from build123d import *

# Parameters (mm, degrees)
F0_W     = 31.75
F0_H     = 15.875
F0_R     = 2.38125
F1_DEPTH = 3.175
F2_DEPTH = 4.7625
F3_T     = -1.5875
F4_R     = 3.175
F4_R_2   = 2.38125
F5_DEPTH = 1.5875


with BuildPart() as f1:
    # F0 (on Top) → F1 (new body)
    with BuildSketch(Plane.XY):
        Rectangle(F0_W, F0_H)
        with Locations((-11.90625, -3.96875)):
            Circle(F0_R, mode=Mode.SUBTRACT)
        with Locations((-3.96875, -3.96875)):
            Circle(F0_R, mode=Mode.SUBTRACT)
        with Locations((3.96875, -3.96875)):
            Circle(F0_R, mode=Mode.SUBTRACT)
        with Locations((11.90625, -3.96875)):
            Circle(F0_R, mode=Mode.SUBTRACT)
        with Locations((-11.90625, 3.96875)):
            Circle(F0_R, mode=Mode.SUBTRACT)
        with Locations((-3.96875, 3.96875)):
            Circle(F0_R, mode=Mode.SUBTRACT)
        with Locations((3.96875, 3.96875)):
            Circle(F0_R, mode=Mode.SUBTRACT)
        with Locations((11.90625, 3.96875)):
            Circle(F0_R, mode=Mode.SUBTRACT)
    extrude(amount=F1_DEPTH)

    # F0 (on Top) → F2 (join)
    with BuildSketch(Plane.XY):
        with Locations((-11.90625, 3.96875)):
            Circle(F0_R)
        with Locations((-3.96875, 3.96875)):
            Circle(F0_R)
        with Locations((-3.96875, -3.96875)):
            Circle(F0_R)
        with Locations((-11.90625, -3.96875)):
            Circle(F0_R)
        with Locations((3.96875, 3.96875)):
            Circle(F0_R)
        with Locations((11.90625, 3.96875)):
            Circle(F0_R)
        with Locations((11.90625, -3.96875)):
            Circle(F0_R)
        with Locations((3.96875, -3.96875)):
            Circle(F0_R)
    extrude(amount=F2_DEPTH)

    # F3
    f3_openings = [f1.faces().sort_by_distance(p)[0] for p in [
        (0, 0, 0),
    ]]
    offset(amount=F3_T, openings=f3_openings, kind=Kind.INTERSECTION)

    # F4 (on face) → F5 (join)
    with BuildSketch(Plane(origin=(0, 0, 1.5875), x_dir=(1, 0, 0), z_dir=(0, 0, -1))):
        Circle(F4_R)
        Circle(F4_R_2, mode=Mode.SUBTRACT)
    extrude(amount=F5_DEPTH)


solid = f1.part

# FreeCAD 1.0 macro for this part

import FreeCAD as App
import Part
import Sketcher
from FreeCAD import Vector
Q = App.Units.Quantity


def faces_at(feature, points):
    """Names of the faces that lie closest to the given points."""
    faces = feature.Shape.Faces
    near = lambda p: min(range(len(faces)), key=lambda i: faces[i].distToShape(Part.Vertex(*p))[0])
    return sorted({f"Face{near(p) + 1}" for p in points})


def add_polygon(sketch, points):
    """Adds a closed chain of lines whose ends are joined by coincident constraints."""
    first, n = sketch.GeometryCount, len(points)
    for a, b in zip(points, points[1:] + points[:1]):
        sketch.addGeometry(Part.LineSegment(App.Vector(*a, 0), App.Vector(*b, 0)), False)
    for i in range(n):
        sketch.addConstraint(Sketcher.Constraint("Coincident", first + i, 2, first + (i + 1) % n, 1))

doc = App.newDocument("Part")
body = doc.addObject("PartDesign::Body", "Body")

# Sketch on XY plane
sketch1 = body.newObject("Sketcher::SketchObject", "Sketch")
sketch1.AttachmentSupport = (doc.getObject("XY_Plane"), [""])
sketch1.MapMode = "FlatFace"
add_polygon(sketch1, [(-15.9, 7.9), (-15.9, -7.9), (15.9, -7.9), (15.9, 7.9)])  # lines 0-3
sketch1.addGeometry(Part.Circle(Vector(-11.9, -4, 0), Vector(0, 0, 1), 2.4), False)  # 4
sketch1.addGeometry(Part.Circle(Vector(-4, -4, 0), Vector(0, 0, 1), 2.4), False)  # 5
sketch1.addGeometry(Part.Circle(Vector(4, -4, 0), Vector(0, 0, 1), 2.4), False)  # 6
sketch1.addGeometry(Part.Circle(Vector(11.9, -4, 0), Vector(0, 0, 1), 2.4), False)  # 7
sketch1.addGeometry(Part.Circle(Vector(-11.9, 4, 0), Vector(0, 0, 1), 2.4), False)  # 8
sketch1.addGeometry(Part.Circle(Vector(-4, 4, 0), Vector(0, 0, 1), 2.4), False)  # 9
sketch1.addGeometry(Part.Circle(Vector(4, 4, 0), Vector(0, 0, 1), 2.4), False)  # 10
sketch1.addGeometry(Part.Circle(Vector(11.9, 4, 0), Vector(0, 0, 1), 2.4), False)  # 11
sketch1.addConstraint(Sketcher.Constraint("Vertical", 0))
sketch1.addConstraint(Sketcher.Constraint("Horizontal", 1))
sketch1.addConstraint(Sketcher.Constraint("Vertical", 2))
sketch1.addConstraint(Sketcher.Constraint("Horizontal", 3))
sketch1.addConstraint(Sketcher.Constraint("Equal", 4, 5))
sketch1.addConstraint(Sketcher.Constraint("Equal", 5, 6))
sketch1.addConstraint(Sketcher.Constraint("Equal", 6, 7))
sketch1.addConstraint(Sketcher.Constraint("Equal", 7, 8))
sketch1.addConstraint(Sketcher.Constraint("Equal", 8, 9))
sketch1.addConstraint(Sketcher.Constraint("Equal", 9, 10))
sketch1.addConstraint(Sketcher.Constraint("Equal", 10, 11))
sketch1.addConstraint(Sketcher.Constraint("Symmetric", 7, 3, 8, 3, -1, 1))
sketch1.addConstraint(Sketcher.Constraint("Symmetric", 6, 3, 9, 3, -1, 1))
sketch1.addConstraint(Sketcher.Constraint("Symmetric", 5, 3, 10, 3, -1, 1))
sketch1.addConstraint(Sketcher.Constraint("Symmetric", 4, 3, 11, 3, -1, 1))
sketch1.addConstraint(Sketcher.Constraint("Symmetric", 0, 2, 2, 2, -1, 1))
sketch1.addConstraint(Sketcher.Constraint("Symmetric", 5, 3, 6, 3, -2))
sketch1.addConstraint(Sketcher.Constraint("Symmetric", 4, 3, 7, 3, -2))
sketch1.addConstraint(Sketcher.Constraint("Horizontal", 4, 3, 5, 3))
sketch1.addConstraint(Sketcher.Constraint("Diameter", 4, Q("0.1875 in")))
sketch1.addConstraint(Sketcher.Constraint("DistanceX", 1, 1, 1, 2, Q("1.25 in")))
sketch1.addConstraint(Sketcher.Constraint("DistanceY", 0, 2, 0, 1, Q("0.625 in")))
sketch1.addConstraint(Sketcher.Constraint("DistanceX", 4, 3, -1, 1, Q("0.46875 in")))
sketch1.addConstraint(Sketcher.Constraint("DistanceY", 4, 3, -1, 1, Q("0.15625 in")))
sketch1.addConstraint(Sketcher.Constraint("DistanceX", 5, 3, -1, 1, Q("0.15625 in")))
pad1 = body.newObject("PartDesign::Pad", "Pad")
pad1.Profile = sketch1
pad1.Length = Q("0.125 in")

# Sketch on XY plane
sketch2 = body.newObject("Sketcher::SketchObject", "Sketch001")
sketch2.AttachmentSupport = (doc.getObject("XY_Plane"), [""])
sketch2.MapMode = "FlatFace"
sketch2.addGeometry(Part.Circle(Vector(-11.9, 4, 0), Vector(0, 0, 1), 2.4), False)
sketch2.addGeometry(Part.Circle(Vector(-4, 4, 0), Vector(0, 0, 1), 2.4), False)
sketch2.addGeometry(Part.Circle(Vector(-4, -4, 0), Vector(0, 0, 1), 2.4), False)
sketch2.addGeometry(Part.Circle(Vector(-11.9, -4, 0), Vector(0, 0, 1), 2.4), False)
sketch2.addGeometry(Part.Circle(Vector(4, 4, 0), Vector(0, 0, 1), 2.4), False)
sketch2.addGeometry(Part.Circle(Vector(11.9, 4, 0), Vector(0, 0, 1), 2.4), False)
sketch2.addGeometry(Part.Circle(Vector(11.9, -4, 0), Vector(0, 0, 1), 2.4), False)
sketch2.addGeometry(Part.Circle(Vector(4, -4, 0), Vector(0, 0, 1), 2.4), False)
sketch2.addConstraint(Sketcher.Constraint("Equal", 0, 1))
sketch2.addConstraint(Sketcher.Constraint("Equal", 1, 2))
sketch2.addConstraint(Sketcher.Constraint("Equal", 2, 3))
sketch2.addConstraint(Sketcher.Constraint("Equal", 3, 4))
sketch2.addConstraint(Sketcher.Constraint("Equal", 4, 5))
sketch2.addConstraint(Sketcher.Constraint("Equal", 5, 6))
sketch2.addConstraint(Sketcher.Constraint("Equal", 6, 7))
sketch2.addConstraint(Sketcher.Constraint("Symmetric", 2, 3, 4, 3, -1, 1))
sketch2.addConstraint(Sketcher.Constraint("Symmetric", 3, 3, 5, 3, -1, 1))
sketch2.addConstraint(Sketcher.Constraint("Symmetric", 0, 3, 6, 3, -1, 1))
sketch2.addConstraint(Sketcher.Constraint("Symmetric", 1, 3, 7, 3, -1, 1))
sketch2.addConstraint(Sketcher.Constraint("Symmetric", 1, 3, 4, 3, -2))
sketch2.addConstraint(Sketcher.Constraint("Symmetric", 0, 3, 5, 3, -2))
sketch2.addConstraint(Sketcher.Constraint("Horizontal", 0, 3, 1, 3))
sketch2.addConstraint(Sketcher.Constraint("Diameter", 0, Q("0.1875 in")))
sketch2.addConstraint(Sketcher.Constraint("DistanceX", 0, 3, -1, 1, Q("0.46875 in")))
sketch2.addConstraint(Sketcher.Constraint("DistanceY", -1, 1, 0, 3, Q("0.15625 in")))
sketch2.addConstraint(Sketcher.Constraint("DistanceX", 1, 3, -1, 1, Q("0.15625 in")))
pad2 = body.newObject("PartDesign::Pad", "Pad001")
pad2.Profile = sketch2
pad2.Length = Q("0.1875 in")
doc.recompute()

thickness = body.newObject("PartDesign::Thickness", "Thickness")
thickness.Base = (pad2, faces_at(pad2, [(0, 0, 0)]))
thickness.Value = Q("0.0625 in")
thickness.Reversed = True
thickness.Join = "Intersection"

# Sketch on XY plane
sketch3 = body.newObject("Sketcher::SketchObject", "Sketch002")
sketch3.AttachmentSupport = (doc.getObject("XY_Plane"), [""])
sketch3.MapMode = "FlatFace"
sketch3.AttachmentOffset = App.Placement(Vector(0, 0, 0.0625 * 25.4), App.Rotation())
sketch3.addGeometry(Part.Circle(Vector(0, 0, 0), Vector(0, 0, 1), 3.2), False)
sketch3.addGeometry(Part.Circle(Vector(0, 0, 0), Vector(0, 0, 1), 2.4), False)
sketch3.addConstraint(Sketcher.Constraint("Coincident", 0, 3, -1, 1))
sketch3.addConstraint(Sketcher.Constraint("Coincident", 1, 3, -1, 1))
sketch3.addConstraint(Sketcher.Constraint("Diameter", 0, Q("0.25 in")))
sketch3.addConstraint(Sketcher.Constraint("Diameter", 1, Q("0.1875 in")))
pad3 = body.newObject("PartDesign::Pad", "Pad002")
pad3.Profile = sketch3
pad3.Length = Q("0.0625 in")
pad3.Reversed = True

doc.recompute()
